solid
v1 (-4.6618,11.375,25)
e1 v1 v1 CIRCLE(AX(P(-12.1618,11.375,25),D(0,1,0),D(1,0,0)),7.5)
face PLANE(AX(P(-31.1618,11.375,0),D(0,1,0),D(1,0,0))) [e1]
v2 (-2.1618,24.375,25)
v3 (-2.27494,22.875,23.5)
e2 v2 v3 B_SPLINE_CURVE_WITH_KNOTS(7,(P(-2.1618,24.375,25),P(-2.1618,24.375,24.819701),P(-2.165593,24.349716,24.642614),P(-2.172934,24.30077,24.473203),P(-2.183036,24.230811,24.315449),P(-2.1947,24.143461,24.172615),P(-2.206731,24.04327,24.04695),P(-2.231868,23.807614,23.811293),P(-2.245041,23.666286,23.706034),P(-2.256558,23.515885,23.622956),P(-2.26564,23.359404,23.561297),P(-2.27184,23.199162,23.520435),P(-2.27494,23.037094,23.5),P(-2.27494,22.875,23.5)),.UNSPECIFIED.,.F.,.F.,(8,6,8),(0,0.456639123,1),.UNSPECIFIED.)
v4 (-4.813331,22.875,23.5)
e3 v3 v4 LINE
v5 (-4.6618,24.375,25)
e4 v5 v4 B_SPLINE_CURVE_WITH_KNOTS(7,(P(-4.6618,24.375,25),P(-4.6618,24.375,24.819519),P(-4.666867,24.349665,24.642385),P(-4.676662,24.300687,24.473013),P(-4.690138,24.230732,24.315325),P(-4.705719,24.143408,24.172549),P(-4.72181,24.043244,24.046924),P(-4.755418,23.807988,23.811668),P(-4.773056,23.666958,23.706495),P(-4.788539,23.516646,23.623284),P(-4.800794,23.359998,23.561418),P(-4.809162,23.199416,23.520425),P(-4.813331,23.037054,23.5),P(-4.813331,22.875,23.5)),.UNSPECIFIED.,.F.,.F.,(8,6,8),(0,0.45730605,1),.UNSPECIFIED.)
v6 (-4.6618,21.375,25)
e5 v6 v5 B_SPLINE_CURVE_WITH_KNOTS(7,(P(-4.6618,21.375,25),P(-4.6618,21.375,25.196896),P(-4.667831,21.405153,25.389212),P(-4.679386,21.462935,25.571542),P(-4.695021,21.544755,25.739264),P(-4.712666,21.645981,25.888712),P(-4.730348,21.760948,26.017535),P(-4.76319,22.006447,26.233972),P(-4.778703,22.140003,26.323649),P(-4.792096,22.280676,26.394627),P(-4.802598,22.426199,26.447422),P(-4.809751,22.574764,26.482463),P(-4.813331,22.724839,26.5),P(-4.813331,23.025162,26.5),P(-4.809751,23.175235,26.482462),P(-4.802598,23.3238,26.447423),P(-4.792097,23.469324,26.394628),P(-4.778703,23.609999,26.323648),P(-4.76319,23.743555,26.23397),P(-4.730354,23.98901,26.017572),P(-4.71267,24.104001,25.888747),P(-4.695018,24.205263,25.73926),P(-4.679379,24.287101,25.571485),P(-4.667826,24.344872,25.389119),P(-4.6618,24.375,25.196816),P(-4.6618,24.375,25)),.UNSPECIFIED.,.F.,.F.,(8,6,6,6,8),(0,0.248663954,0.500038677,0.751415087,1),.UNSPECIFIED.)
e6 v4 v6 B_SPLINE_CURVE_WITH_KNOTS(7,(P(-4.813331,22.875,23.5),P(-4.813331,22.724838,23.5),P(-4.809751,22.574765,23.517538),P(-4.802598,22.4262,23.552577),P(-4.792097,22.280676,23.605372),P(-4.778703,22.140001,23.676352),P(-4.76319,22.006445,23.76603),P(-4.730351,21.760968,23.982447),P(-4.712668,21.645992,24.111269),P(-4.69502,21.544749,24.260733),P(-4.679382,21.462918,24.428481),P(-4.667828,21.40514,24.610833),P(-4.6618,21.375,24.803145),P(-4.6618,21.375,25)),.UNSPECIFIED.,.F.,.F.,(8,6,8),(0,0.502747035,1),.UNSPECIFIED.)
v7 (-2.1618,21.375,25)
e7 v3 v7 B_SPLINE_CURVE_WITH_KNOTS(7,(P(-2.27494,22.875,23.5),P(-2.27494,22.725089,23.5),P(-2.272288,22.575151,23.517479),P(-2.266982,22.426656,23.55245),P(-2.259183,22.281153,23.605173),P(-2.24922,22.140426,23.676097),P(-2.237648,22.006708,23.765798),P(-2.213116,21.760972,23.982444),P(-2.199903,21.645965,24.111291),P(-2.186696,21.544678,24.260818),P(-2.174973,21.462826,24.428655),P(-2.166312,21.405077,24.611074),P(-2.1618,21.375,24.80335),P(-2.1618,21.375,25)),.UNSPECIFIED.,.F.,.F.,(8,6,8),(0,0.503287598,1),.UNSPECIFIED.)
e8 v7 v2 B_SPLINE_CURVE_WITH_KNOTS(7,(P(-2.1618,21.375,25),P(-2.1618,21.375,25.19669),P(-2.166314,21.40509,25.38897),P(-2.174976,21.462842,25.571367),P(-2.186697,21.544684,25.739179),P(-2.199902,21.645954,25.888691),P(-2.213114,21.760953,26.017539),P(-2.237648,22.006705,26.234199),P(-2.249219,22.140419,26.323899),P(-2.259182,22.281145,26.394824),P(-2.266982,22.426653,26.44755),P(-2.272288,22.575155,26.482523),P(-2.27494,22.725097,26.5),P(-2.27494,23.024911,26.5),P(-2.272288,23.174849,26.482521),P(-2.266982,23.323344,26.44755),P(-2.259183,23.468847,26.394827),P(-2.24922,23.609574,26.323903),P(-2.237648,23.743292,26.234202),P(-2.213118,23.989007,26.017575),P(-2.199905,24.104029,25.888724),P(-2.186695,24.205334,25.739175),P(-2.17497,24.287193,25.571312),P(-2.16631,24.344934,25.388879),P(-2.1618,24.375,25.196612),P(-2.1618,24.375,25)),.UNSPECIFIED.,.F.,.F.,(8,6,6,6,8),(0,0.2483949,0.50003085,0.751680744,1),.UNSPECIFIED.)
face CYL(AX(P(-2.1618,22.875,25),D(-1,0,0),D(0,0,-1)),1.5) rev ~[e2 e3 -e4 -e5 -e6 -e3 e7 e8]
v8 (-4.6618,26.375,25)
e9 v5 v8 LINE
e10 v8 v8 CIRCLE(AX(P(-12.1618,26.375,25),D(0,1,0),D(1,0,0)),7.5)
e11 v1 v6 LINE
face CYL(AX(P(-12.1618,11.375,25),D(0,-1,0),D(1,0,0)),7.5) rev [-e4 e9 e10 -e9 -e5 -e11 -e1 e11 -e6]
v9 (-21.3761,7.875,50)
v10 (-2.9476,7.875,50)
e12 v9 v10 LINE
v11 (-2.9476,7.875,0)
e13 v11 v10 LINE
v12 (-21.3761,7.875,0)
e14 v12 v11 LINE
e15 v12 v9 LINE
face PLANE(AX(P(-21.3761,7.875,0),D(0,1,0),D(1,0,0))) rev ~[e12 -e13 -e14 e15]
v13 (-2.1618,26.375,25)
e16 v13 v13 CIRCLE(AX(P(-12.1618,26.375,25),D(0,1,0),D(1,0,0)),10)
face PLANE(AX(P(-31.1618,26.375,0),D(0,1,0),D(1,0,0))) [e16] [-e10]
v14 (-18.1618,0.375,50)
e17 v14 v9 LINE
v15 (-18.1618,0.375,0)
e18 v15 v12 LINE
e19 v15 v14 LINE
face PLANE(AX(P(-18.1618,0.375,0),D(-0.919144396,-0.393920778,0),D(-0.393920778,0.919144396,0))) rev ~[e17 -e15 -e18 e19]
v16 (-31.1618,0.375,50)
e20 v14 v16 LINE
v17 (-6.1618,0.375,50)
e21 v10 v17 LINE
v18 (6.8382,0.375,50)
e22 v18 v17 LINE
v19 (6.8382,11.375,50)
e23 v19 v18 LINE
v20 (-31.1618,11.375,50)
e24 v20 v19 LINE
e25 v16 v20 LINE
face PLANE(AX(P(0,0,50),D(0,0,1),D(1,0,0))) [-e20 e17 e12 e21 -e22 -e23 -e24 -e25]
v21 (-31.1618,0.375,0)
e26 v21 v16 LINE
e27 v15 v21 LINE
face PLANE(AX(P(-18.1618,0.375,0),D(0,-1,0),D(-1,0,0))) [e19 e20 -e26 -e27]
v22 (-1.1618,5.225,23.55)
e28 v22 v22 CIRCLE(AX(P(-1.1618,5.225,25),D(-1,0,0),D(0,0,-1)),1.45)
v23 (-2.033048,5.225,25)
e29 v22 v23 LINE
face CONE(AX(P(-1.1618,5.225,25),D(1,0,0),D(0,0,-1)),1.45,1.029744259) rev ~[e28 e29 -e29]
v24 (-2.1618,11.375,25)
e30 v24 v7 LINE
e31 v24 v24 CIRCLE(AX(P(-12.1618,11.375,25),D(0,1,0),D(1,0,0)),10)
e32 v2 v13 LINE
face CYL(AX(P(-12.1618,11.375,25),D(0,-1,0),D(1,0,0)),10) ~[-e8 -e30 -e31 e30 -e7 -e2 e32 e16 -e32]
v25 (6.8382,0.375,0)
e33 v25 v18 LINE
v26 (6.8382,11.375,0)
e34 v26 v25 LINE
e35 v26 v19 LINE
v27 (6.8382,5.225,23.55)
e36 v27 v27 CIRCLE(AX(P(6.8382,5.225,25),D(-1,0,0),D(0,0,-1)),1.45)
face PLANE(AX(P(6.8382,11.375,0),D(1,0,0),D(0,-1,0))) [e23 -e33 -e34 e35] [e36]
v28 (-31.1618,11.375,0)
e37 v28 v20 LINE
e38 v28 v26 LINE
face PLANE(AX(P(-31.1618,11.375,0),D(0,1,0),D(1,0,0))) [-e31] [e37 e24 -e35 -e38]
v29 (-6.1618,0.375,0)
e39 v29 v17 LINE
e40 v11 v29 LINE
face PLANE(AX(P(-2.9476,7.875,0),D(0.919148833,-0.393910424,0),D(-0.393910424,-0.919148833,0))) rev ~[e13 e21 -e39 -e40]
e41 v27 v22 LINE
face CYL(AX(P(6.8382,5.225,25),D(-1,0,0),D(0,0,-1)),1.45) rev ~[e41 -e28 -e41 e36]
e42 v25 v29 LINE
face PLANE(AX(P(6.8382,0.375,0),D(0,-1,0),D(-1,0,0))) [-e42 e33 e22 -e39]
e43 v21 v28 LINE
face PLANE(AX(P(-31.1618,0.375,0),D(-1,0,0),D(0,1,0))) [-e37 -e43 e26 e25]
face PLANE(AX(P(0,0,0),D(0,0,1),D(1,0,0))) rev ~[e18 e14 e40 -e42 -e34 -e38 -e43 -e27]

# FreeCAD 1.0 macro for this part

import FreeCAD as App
import Part
import Sketcher
from FreeCAD import Vector
Q = App.Units.Quantity


def add_polygon(sketch, points):
    """Adds a closed chain of lines whose ends are joined by coincident constraints."""
    first, n = sketch.GeometryCount, len(points)
    for a, b in zip(points, points[1:] + points[:1]):
        sketch.addGeometry(Part.LineSegment(App.Vector(*a, 0), App.Vector(*b, 0)), False)
    for i in range(n):
        sketch.addConstraint(Sketcher.Constraint("Coincident", first + i, 2, first + (i + 1) % n, 1))

doc = App.newDocument("Part")
body = doc.addObject("PartDesign::Body", "Body")

# Sketch on XY plane
sketch1 = body.newObject("Sketcher::SketchObject", "Sketch")
sketch1.AttachmentSupport = (doc.getObject("XY_Plane"), [""])
sketch1.MapMode = "FlatFace"
add_polygon(sketch1, [(-31.1618, 0.375), (-18.1618, 0.375), (-21.3761, 7.875), (-2.9476, 7.875), (-6.1618, 0.375), (6.8382, 0.375), (6.8382, 11.375), (-31.1618, 11.375)])  # lines 0-7
sketch1.addConstraint([
    Sketcher.Constraint("Horizontal", 0),
    Sketcher.Constraint("Horizontal", 2),
    Sketcher.Constraint("Horizontal", 4),
    Sketcher.Constraint("Vertical", 5),
    Sketcher.Constraint("Horizontal", 6),
    Sketcher.Constraint("Vertical", 7),
    Sketcher.Constraint("Horizontal", 0, 2, 3, 2),
    Sketcher.Constraint("Equal", 0, 4),
    Sketcher.Constraint("Equal", 1, 3),
    Sketcher.Constraint("DistanceX", 0, 1, 0, 2, Q("13 mm")),
    Sketcher.Constraint("DistanceX", 6, 2, 6, 1, Q("38 mm")),
    Sketcher.Constraint("DistanceY", 5, 1, 5, 2, Q("11 mm")),
    Sketcher.Constraint("DistanceY", 0, 2, 1, 2, Q("7.5 mm")),
    Sketcher.Constraint("DistanceX", 2, 1, 2, 2, Q("18.4285 mm")),
    Sketcher.Constraint("DistanceY", -1, 1, 0, 2, Q("0.375 mm")),
    Sketcher.Constraint("DistanceX", 1, 2, -1, 1, Q("21.376 mm")),
])
pad1 = body.newObject("PartDesign::Pad", "Pad")
pad1.Profile = sketch1
pad1.Length = 50

# Sketch on YZ plane
sketch2 = body.newObject("Sketcher::SketchObject", "Sketch001")
sketch2.AttachmentSupport = (doc.getObject("YZ_Plane"), [""])
sketch2.MapMode = "FlatFace"
sketch2.AttachmentOffset = App.Placement(Vector(0, 0, 6.8382), App.Rotation())
sketch2.addGeometry(Part.Circle(Vector(5.225, 25, 0), Vector(0, 0, 1), 1.45), False)
sketch2.addConstraint([
    Sketcher.Constraint("Diameter", 0, Q("2.9 mm")),
    Sketcher.Constraint("DistanceY", -1, 1, 0, 3, Q("25 mm")),
    Sketcher.Constraint("DistanceX", -1, 1, 0, 3, Q("5.225 mm")),
])
doc.recompute()
hole = body.newObject("PartDesign::Hole", "Hole")
hole.Profile = sketch2
hole.ThreadType = "None"
hole.Diameter = 2.9
hole.DepthType = "Dimension"
hole.Depth = 8
hole.DrillPoint = "Angled"
hole.DrillPointAngle = 118

# Sketch on XZ plane
sketch3 = body.newObject("Sketcher::SketchObject", "Sketch002")
sketch3.AttachmentSupport = (doc.getObject("XZ_Plane"), [""])
sketch3.MapMode = "FlatFace"
sketch3.AttachmentOffset = App.Placement(Vector(0, 0, -11.375), App.Rotation())
sketch3.addGeometry([
    Part.Circle(Vector(-12.1618, 25, 0), Vector(0, 0, 1), 10),
    Part.Circle(Vector(-12.1618, 25, 0), Vector(0, 0, 1), 7.5),
], False)
sketch3.addConstraint([
    Sketcher.Constraint("Coincident", 1, 3, 0, 3),
    Sketcher.Constraint("Diameter", 0, Q("20 mm")),
    Sketcher.Constraint("Diameter", 1, Q("15 mm")),
    Sketcher.Constraint("DistanceY", -1, 1, 0, 3, Q("25 mm")),
    Sketcher.Constraint("DistanceX", 0, 3, -1, 1, Q("12.1618 mm")),
])
pad2 = body.newObject("PartDesign::Pad", "Pad001")
pad2.Profile = sketch3
pad2.Length = 15
pad2.Reversed = True

# Sketch on YZ plane
sketch4 = body.newObject("Sketcher::SketchObject", "Sketch003")
sketch4.AttachmentSupport = (doc.getObject("YZ_Plane"), [""])
sketch4.MapMode = "FlatFace"
sketch4.AttachmentOffset = App.Placement(Vector(0, 0, -2.1618), App.Rotation())
sketch4.addGeometry(Part.Circle(Vector(22.875, 25, 0), Vector(0, 0, 1), 1.5), False)
sketch4.addConstraint([
    Sketcher.Constraint("Diameter", 0, Q("3 mm")),
    Sketcher.Constraint("DistanceY", -1, 1, 0, 3, Q("25 mm")),
    Sketcher.Constraint("DistanceX", -1, 1, 0, 3, Q("22.875 mm")),
])
doc.recompute()
hole2 = body.newObject("PartDesign::Hole", "Hole001")
hole2.Profile = sketch4
hole2.ThreadType = "None"
hole2.Diameter = 3
hole2.DepthType = "Dimension"
hole2.Depth = 8
hole2.DrillPoint = "Angled"
hole2.DrillPointAngle = 118

doc.recompute()
